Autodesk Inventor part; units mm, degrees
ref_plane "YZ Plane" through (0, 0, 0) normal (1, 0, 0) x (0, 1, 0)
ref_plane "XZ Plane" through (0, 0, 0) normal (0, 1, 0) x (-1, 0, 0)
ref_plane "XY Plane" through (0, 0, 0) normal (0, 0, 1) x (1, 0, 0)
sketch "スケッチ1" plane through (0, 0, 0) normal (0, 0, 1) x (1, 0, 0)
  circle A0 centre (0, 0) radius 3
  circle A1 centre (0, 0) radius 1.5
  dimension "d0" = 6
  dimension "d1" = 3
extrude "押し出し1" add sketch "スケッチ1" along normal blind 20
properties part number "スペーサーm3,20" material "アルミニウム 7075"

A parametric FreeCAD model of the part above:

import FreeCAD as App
import Part
import Sketcher

V = App.Vector
Q = App.Units.Quantity

doc = App.newDocument("Part")
body = doc.addObject("PartDesign::Body", "Body")

sketch1 = body.newObject("Sketcher::SketchObject", "Sketch")
sketch1.AttachmentSupport = (doc.getObject("XY_Plane"), [""])
sketch1.MapMode = "FlatFace"
sketch1.addGeometry([
    Part.Circle(V(0, 0, 0), V(0, 0, 1), 3),
    Part.Circle(V(0, 0, 0), V(0, 0, 1), 1.5),
], False)
sketch1.addConstraint([
    Sketcher.Constraint("Coincident", 0, 3, -1, 1),
    Sketcher.Constraint("Coincident", 1, 3, -1, 1),
    Sketcher.Constraint("Diameter", 0, Q("6 mm")),
    Sketcher.Constraint("Diameter", 1, Q("3 mm")),
])
pad1 = body.newObject("PartDesign::Pad", "Pad")
pad1.Profile = sketch1
pad1.Length = 20

doc.recompute()
